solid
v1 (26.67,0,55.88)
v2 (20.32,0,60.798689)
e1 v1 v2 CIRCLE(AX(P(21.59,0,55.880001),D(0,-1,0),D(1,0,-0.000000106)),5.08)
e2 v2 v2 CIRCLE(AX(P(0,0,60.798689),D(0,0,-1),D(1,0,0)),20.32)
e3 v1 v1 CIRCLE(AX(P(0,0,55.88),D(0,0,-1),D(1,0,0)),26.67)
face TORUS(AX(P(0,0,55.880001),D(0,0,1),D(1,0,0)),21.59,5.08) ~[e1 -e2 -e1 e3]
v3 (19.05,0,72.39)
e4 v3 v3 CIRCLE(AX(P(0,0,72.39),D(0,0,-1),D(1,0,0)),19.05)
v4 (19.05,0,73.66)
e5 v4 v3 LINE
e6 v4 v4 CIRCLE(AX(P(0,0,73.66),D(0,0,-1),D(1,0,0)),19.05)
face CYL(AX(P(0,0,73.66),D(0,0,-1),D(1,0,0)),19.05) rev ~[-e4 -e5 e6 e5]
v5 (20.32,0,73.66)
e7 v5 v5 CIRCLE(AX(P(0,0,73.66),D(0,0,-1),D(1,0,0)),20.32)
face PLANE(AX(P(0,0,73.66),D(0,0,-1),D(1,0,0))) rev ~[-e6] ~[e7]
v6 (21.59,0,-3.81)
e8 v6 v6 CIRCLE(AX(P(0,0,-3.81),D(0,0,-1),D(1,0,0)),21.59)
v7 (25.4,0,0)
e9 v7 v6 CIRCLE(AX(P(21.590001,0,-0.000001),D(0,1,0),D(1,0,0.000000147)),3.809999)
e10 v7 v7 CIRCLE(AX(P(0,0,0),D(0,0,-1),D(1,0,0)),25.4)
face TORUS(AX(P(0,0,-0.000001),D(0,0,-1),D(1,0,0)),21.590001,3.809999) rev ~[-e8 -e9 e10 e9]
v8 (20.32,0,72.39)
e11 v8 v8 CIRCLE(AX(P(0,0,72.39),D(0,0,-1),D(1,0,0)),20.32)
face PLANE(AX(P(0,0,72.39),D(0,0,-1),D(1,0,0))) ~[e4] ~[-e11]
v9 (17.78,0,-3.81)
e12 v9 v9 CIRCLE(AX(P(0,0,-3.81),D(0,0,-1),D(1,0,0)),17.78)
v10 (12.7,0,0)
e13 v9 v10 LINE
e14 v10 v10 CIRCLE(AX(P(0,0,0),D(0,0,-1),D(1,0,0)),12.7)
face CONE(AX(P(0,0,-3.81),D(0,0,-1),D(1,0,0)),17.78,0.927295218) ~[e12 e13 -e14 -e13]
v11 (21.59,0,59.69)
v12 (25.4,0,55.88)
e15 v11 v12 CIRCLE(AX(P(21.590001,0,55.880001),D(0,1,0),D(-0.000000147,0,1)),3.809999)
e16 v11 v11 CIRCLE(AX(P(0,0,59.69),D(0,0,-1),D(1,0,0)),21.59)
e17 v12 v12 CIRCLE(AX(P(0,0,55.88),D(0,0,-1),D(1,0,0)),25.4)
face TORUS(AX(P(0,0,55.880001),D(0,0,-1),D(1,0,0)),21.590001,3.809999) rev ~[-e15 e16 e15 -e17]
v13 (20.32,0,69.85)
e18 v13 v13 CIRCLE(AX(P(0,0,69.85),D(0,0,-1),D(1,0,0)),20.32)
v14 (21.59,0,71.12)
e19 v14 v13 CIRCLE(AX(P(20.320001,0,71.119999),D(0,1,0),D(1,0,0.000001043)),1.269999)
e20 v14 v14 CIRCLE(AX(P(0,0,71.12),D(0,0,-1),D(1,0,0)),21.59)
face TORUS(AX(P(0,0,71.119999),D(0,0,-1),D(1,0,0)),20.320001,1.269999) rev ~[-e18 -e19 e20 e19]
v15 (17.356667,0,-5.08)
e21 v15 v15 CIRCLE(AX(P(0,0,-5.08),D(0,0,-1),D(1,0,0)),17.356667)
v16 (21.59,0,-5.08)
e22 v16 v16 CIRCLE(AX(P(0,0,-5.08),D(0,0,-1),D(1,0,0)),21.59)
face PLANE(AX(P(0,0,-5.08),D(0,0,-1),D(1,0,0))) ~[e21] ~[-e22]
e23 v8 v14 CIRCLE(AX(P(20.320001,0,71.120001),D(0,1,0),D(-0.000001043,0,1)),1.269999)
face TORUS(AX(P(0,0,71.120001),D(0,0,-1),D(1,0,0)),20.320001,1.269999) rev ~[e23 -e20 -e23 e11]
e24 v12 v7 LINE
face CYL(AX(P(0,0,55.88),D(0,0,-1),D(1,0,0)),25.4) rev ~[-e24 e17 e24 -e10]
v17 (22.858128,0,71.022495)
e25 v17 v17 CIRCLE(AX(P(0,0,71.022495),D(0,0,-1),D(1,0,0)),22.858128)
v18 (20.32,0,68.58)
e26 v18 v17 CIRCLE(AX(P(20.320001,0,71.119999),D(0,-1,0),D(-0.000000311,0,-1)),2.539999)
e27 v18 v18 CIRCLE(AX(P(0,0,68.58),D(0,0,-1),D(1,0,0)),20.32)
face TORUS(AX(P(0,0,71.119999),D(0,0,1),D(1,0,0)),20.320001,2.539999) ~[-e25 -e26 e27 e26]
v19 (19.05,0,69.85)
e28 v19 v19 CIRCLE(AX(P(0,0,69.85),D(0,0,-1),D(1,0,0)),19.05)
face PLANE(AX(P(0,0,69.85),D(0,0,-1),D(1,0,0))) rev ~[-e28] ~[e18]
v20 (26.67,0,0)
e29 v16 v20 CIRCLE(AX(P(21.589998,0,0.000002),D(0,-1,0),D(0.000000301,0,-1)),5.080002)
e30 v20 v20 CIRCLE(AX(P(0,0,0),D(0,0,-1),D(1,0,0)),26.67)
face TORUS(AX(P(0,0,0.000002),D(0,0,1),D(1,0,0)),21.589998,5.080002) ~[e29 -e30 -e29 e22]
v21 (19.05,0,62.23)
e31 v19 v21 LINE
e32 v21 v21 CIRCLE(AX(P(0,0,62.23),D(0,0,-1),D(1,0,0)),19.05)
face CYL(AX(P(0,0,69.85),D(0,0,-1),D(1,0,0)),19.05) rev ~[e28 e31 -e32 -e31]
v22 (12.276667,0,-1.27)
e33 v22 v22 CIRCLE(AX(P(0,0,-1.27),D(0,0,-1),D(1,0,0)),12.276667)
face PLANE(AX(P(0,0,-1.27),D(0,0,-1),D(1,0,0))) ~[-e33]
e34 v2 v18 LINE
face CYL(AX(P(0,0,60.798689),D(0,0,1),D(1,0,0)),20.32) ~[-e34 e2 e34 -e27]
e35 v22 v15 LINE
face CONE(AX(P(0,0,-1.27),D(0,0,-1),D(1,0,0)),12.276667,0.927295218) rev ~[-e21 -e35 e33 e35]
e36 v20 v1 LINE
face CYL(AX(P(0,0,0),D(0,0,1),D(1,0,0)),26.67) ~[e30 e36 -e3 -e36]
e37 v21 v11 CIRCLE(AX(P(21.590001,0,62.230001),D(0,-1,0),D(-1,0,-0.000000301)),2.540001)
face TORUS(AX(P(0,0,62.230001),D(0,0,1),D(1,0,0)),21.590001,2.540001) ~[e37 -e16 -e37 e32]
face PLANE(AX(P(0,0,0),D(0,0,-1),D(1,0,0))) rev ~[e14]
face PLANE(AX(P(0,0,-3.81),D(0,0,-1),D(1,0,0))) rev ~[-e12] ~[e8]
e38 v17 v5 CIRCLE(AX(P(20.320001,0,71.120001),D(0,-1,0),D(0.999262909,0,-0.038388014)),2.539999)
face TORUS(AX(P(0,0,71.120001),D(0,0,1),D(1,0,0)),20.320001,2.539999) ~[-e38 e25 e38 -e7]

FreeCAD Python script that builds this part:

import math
import FreeCAD as App
import Part
import Sketcher
Q = App.Units.Quantity

doc = App.newDocument("Part")
body = doc.addObject("PartDesign::Body", "Body")

sketch1 = doc.addObject("Sketcher::SketchObject", "Sketch")
body.addObject(sketch1)
sketch1.AttachmentSupport = (doc.XZ_Plane, [""])
sketch1.MapMode = "FlatFace"
sketch1.addGeometry(Part.LineSegment(App.Vector(12.7, 0, 0), App.Vector(0, 0, 0)), False)
sketch1.addGeometry(Part.LineSegment(App.Vector(0, 0, 0), App.Vector(0, -1.27, 0)), False)
sketch1.addGeometry(Part.LineSegment(App.Vector(0, -1.27, 0), App.Vector(12.276667, -1.27, 0)), False)
sketch1.addGeometry(Part.LineSegment(App.Vector(12.276667, -1.27, 0), App.Vector(17.356667, -5.08, 0)), False)
sketch1.addGeometry(Part.LineSegment(App.Vector(17.356667, -5.08, 0), App.Vector(21.59, -5.08, 0)), False)
sketch1.addGeometry(Part.ArcOfCircle(Part.Circle(App.Vector(21.589998, 0.000002, 0), App.Vector(0, 0, 1), 5.080002), math.radians(-89.999983), math.radians(-0.000017)), False)
sketch1.addGeometry(Part.LineSegment(App.Vector(26.67, 0, 0), App.Vector(26.67, 55.88, 0)), False)
sketch1.addGeometry(Part.ArcOfCircle(Part.Circle(App.Vector(21.59, 55.880001, 0), App.Vector(0, 0, 1), 5.08), math.radians(-0.000006), math.radians(104.477517)), False)
sketch1.addGeometry(Part.LineSegment(App.Vector(20.32, 60.798689, 0), App.Vector(20.32, 68.58, 0)), False)
sketch1.addGeometry(Part.ArcOfCircle(Part.Circle(App.Vector(20.320001, 71.119999, 0), App.Vector(0, 0, 1), 2.539999), math.radians(-90.000018), math.radians(-2.199986)), False)
sketch1.addGeometry(Part.ArcOfCircle(Part.Circle(App.Vector(20.320001, 71.120001, 0), App.Vector(0, 0, 1), 2.539999), math.radians(-2.200012), math.radians(90.000017)), False)
sketch1.addGeometry(Part.LineSegment(App.Vector(20.32, 73.66, 0), App.Vector(19.05, 73.66, 0)), False)
sketch1.addGeometry(Part.LineSegment(App.Vector(19.05, 73.66, 0), App.Vector(19.05, 72.39, 0)), False)
sketch1.addGeometry(Part.LineSegment(App.Vector(19.05, 72.39, 0), App.Vector(20.32, 72.39, 0)), False)
sketch1.addGeometry(Part.ArcOfCircle(Part.Circle(App.Vector(20.320001, 71.120001, 0), App.Vector(0, 0, 1), 1.269999), math.radians(-0.00006), math.radians(90.00006)), False)
sketch1.addGeometry(Part.ArcOfCircle(Part.Circle(App.Vector(20.320001, 71.119999, 0), App.Vector(0, 0, 1), 1.269999), math.radians(-90.00006), math.radians(0.00006)), False)
sketch1.addGeometry(Part.LineSegment(App.Vector(20.32, 69.85, 0), App.Vector(19.05, 69.85, 0)), False)
sketch1.addGeometry(Part.LineSegment(App.Vector(19.05, 69.85, 0), App.Vector(19.05, 62.23, 0)), False)
sketch1.addGeometry(Part.ArcOfCircle(Part.Circle(App.Vector(21.590001, 62.230001, 0), App.Vector(0, 0, 1), 2.540001), math.radians(-179.999983), math.radians(-90.000017)), False)
sketch1.addGeometry(Part.ArcOfCircle(Part.Circle(App.Vector(21.590001, 55.880001, 0), App.Vector(0, 0, 1), 3.809999), math.radians(-0.000008), math.radians(90.000008)), False)
sketch1.addGeometry(Part.LineSegment(App.Vector(25.4, 55.88, 0), App.Vector(25.4, 0, 0)), False)
sketch1.addGeometry(Part.ArcOfCircle(Part.Circle(App.Vector(21.590001, -0.000001, 0), App.Vector(0, 0, 1), 3.809999), math.radians(-90.000008), math.radians(0.000008)), False)
sketch1.addGeometry(Part.LineSegment(App.Vector(21.59, -3.81, 0), App.Vector(17.78, -3.81, 0)), False)
sketch1.addGeometry(Part.LineSegment(App.Vector(17.78, -3.81, 0), App.Vector(12.7, 0, 0)), False)
sketch1.addConstraint(Sketcher.Constraint("Coincident", 0, 2, 1, 1))
sketch1.addConstraint(Sketcher.Constraint("Coincident", 1, 2, 2, 1))
sketch1.addConstraint(Sketcher.Constraint("Coincident", 2, 2, 3, 1))
sketch1.addConstraint(Sketcher.Constraint("Coincident", 3, 2, 4, 1))
sketch1.addConstraint(Sketcher.Constraint("Coincident", 4, 2, 5, 1))
sketch1.addConstraint(Sketcher.Constraint("Coincident", 5, 2, 6, 1))
sketch1.addConstraint(Sketcher.Constraint("Coincident", 6, 2, 7, 1))
sketch1.addConstraint(Sketcher.Constraint("Coincident", 7, 2, 8, 1))
sketch1.addConstraint(Sketcher.Constraint("Coincident", 8, 2, 9, 1))
sketch1.addConstraint(Sketcher.Constraint("Coincident", 9, 2, 10, 1))
sketch1.addConstraint(Sketcher.Constraint("Coincident", 10, 2, 11, 1))
sketch1.addConstraint(Sketcher.Constraint("Coincident", 11, 2, 12, 1))
sketch1.addConstraint(Sketcher.Constraint("Coincident", 12, 2, 13, 1))
sketch1.addConstraint(Sketcher.Constraint("Coincident", 13, 2, 14, 2))
sketch1.addConstraint(Sketcher.Constraint("Coincident", 14, 1, 15, 2))
sketch1.addConstraint(Sketcher.Constraint("Coincident", 15, 1, 16, 1))
sketch1.addConstraint(Sketcher.Constraint("Coincident", 16, 2, 17, 1))
sketch1.addConstraint(Sketcher.Constraint("Coincident", 17, 2, 18, 1))
sketch1.addConstraint(Sketcher.Constraint("Coincident", 18, 2, 19, 2))
sketch1.addConstraint(Sketcher.Constraint("Coincident", 19, 1, 20, 1))
sketch1.addConstraint(Sketcher.Constraint("Coincident", 20, 2, 21, 2))
sketch1.addConstraint(Sketcher.Constraint("Coincident", 21, 1, 22, 1))
sketch1.addConstraint(Sketcher.Constraint("Coincident", 22, 2, 23, 1))
sketch1.addConstraint(Sketcher.Constraint("Coincident", 23, 2, 0, 1))
sketch1.addConstraint(Sketcher.Constraint("Horizontal", 0))
sketch1.addConstraint(Sketcher.Constraint("Vertical", 1))
sketch1.addConstraint(Sketcher.Constraint("Horizontal", 2))
sketch1.addConstraint(Sketcher.Constraint("Horizontal", 4))
sketch1.addConstraint(Sketcher.Constraint("Vertical", 6))
sketch1.addConstraint(Sketcher.Constraint("Vertical", 8))
sketch1.addConstraint(Sketcher.Constraint("Horizontal", 11))
sketch1.addConstraint(Sketcher.Constraint("Vertical", 12))
sketch1.addConstraint(Sketcher.Constraint("Horizontal", 13))
sketch1.addConstraint(Sketcher.Constraint("Horizontal", 16))
sketch1.addConstraint(Sketcher.Constraint("Vertical", 17))
sketch1.addConstraint(Sketcher.Constraint("Vertical", 20))
sketch1.addConstraint(Sketcher.Constraint("Horizontal", 22))
sketch1.addConstraint(Sketcher.Constraint("Coincident", 0, 2, -1, 1))
sketch1.addConstraint(Sketcher.Constraint("Coincident", 10, 3, 9, 3))
sketch1.addConstraint(Sketcher.Constraint("Coincident", 14, 3, 9, 3))
sketch1.addConstraint(Sketcher.Constraint("Coincident", 15, 3, 9, 3))
sketch1.addConstraint(Sketcher.Constraint("Coincident", 19, 3, 7, 3))
sketch1.addConstraint(Sketcher.Constraint("Coincident", 21, 3, 5, 3))
sketch1.addConstraint(Sketcher.Constraint("PointOnObject", 5, 3, -1))
sketch1.addConstraint(Sketcher.Constraint("PointOnObject", 5, 2, -1))
sketch1.addConstraint(Sketcher.Constraint("PointOnObject", 20, 2, -1))
sketch1.addConstraint(Sketcher.Constraint("Radius", 5, Q("0.2000001 in")))
sketch1.addConstraint(Sketcher.Constraint("Radius", 7, Q("0.2 in")))
sketch1.addConstraint(Sketcher.Constraint("Radius", 9, Q("0.1 in")))
sketch1.addConstraint(Sketcher.Constraint("Radius", 18, Q("0.1 in")))
sketch1.addConstraint(Sketcher.Constraint("Radius", 14, Q("0.0499999 in")))
sketch1.addConstraint(Sketcher.Constraint("Radius", 19, Q("0.15 in")))
sketch1.addConstraint(Sketcher.Constraint("DistanceX", 0, 2, 0, 1, Q("0.5 in")))
sketch1.addConstraint(Sketcher.Constraint("DistanceY", 6, 1, 6, 2, Q("2.2 in")))
sketch1.addConstraint(Sketcher.Constraint("DistanceY", 17, 2, 17, 1, Q("0.3 in")))
sketch1.addConstraint(Sketcher.Constraint("DistanceY", 20, 2, 20, 1, Q("2.2 in")))
sketch1.addConstraint(Sketcher.Constraint("DistanceX", -1, 1, 19, 1, Q("1 in")))
sketch1.addConstraint(Sketcher.Constraint("DistanceX", 11, 2, 11, 1, Q("0.05 in")))
sketch1.addConstraint(Sketcher.Constraint("DistanceX", 13, 1, 13, 2, Q("0.05 in")))
sketch1.addConstraint(Sketcher.Constraint("DistanceX", 16, 2, 16, 1, Q("0.05 in")))
sketch1.addConstraint(Sketcher.Constraint("DistanceX", 22, 2, 22, 1, Q("0.15 in")))
sketch1.addConstraint(Sketcher.Constraint("DistanceY", 1, 2, 1, 1, Q("0.05 in")))
sketch1.addConstraint(Sketcher.Constraint("DistanceY", -1, 1, 7, 3, Q("2.2 in")))
sketch1.addConstraint(Sketcher.Constraint("DistanceX", -1, 1, 9, 3, Q("0.8 in")))
sketch1.addConstraint(Sketcher.Constraint("DistanceY", -1, 1, 9, 3, Q("2.8 in")))
sketch1.addConstraint(Sketcher.Constraint("DistanceX", -1, 1, 7, 2, Q("0.8 in")))
sketch1.addConstraint(Sketcher.Constraint("DistanceX", -1, 1, 10, 2, Q("0.8 in")))
sketch1.addConstraint(Sketcher.Constraint("DistanceY", -1, 1, 14, 1, Q("2.8 in")))
sketch1.addConstraint(Sketcher.Constraint("DistanceX", -1, 1, 15, 1, Q("0.8 in")))
sketch1.addConstraint(Sketcher.Constraint("DistanceX", -1, 1, 22, 2, Q("0.7 in")))
sketch1.addConstraint(Sketcher.Constraint("DistanceX", 2, 2, 3, 2, Q("0.2 in")))
sketch1.addConstraint(Sketcher.Constraint("DistanceX", 4, 2, 5, 2, Q("0.2 in")))
sketch1.addConstraint(Sketcher.Constraint("DistanceX", 17, 2, 18, 2, Q("0.1 in")))
sketch1.addConstraint(Sketcher.Constraint("DistanceX", 2, 1, 2, 2, Q("12.276667 mm")))
sketch1.addConstraint(Sketcher.Constraint("DistanceX", -1, 1, 9, 2, Q("22.858128 mm")))
revolution = doc.addObject("PartDesign::Revolution", "Revolution")
body.addObject(revolution)
revolution.Profile = sketch1
revolution.ReferenceAxis = (sketch1, ["V_Axis"])
revolution.Angle = 360

doc.recompute()
